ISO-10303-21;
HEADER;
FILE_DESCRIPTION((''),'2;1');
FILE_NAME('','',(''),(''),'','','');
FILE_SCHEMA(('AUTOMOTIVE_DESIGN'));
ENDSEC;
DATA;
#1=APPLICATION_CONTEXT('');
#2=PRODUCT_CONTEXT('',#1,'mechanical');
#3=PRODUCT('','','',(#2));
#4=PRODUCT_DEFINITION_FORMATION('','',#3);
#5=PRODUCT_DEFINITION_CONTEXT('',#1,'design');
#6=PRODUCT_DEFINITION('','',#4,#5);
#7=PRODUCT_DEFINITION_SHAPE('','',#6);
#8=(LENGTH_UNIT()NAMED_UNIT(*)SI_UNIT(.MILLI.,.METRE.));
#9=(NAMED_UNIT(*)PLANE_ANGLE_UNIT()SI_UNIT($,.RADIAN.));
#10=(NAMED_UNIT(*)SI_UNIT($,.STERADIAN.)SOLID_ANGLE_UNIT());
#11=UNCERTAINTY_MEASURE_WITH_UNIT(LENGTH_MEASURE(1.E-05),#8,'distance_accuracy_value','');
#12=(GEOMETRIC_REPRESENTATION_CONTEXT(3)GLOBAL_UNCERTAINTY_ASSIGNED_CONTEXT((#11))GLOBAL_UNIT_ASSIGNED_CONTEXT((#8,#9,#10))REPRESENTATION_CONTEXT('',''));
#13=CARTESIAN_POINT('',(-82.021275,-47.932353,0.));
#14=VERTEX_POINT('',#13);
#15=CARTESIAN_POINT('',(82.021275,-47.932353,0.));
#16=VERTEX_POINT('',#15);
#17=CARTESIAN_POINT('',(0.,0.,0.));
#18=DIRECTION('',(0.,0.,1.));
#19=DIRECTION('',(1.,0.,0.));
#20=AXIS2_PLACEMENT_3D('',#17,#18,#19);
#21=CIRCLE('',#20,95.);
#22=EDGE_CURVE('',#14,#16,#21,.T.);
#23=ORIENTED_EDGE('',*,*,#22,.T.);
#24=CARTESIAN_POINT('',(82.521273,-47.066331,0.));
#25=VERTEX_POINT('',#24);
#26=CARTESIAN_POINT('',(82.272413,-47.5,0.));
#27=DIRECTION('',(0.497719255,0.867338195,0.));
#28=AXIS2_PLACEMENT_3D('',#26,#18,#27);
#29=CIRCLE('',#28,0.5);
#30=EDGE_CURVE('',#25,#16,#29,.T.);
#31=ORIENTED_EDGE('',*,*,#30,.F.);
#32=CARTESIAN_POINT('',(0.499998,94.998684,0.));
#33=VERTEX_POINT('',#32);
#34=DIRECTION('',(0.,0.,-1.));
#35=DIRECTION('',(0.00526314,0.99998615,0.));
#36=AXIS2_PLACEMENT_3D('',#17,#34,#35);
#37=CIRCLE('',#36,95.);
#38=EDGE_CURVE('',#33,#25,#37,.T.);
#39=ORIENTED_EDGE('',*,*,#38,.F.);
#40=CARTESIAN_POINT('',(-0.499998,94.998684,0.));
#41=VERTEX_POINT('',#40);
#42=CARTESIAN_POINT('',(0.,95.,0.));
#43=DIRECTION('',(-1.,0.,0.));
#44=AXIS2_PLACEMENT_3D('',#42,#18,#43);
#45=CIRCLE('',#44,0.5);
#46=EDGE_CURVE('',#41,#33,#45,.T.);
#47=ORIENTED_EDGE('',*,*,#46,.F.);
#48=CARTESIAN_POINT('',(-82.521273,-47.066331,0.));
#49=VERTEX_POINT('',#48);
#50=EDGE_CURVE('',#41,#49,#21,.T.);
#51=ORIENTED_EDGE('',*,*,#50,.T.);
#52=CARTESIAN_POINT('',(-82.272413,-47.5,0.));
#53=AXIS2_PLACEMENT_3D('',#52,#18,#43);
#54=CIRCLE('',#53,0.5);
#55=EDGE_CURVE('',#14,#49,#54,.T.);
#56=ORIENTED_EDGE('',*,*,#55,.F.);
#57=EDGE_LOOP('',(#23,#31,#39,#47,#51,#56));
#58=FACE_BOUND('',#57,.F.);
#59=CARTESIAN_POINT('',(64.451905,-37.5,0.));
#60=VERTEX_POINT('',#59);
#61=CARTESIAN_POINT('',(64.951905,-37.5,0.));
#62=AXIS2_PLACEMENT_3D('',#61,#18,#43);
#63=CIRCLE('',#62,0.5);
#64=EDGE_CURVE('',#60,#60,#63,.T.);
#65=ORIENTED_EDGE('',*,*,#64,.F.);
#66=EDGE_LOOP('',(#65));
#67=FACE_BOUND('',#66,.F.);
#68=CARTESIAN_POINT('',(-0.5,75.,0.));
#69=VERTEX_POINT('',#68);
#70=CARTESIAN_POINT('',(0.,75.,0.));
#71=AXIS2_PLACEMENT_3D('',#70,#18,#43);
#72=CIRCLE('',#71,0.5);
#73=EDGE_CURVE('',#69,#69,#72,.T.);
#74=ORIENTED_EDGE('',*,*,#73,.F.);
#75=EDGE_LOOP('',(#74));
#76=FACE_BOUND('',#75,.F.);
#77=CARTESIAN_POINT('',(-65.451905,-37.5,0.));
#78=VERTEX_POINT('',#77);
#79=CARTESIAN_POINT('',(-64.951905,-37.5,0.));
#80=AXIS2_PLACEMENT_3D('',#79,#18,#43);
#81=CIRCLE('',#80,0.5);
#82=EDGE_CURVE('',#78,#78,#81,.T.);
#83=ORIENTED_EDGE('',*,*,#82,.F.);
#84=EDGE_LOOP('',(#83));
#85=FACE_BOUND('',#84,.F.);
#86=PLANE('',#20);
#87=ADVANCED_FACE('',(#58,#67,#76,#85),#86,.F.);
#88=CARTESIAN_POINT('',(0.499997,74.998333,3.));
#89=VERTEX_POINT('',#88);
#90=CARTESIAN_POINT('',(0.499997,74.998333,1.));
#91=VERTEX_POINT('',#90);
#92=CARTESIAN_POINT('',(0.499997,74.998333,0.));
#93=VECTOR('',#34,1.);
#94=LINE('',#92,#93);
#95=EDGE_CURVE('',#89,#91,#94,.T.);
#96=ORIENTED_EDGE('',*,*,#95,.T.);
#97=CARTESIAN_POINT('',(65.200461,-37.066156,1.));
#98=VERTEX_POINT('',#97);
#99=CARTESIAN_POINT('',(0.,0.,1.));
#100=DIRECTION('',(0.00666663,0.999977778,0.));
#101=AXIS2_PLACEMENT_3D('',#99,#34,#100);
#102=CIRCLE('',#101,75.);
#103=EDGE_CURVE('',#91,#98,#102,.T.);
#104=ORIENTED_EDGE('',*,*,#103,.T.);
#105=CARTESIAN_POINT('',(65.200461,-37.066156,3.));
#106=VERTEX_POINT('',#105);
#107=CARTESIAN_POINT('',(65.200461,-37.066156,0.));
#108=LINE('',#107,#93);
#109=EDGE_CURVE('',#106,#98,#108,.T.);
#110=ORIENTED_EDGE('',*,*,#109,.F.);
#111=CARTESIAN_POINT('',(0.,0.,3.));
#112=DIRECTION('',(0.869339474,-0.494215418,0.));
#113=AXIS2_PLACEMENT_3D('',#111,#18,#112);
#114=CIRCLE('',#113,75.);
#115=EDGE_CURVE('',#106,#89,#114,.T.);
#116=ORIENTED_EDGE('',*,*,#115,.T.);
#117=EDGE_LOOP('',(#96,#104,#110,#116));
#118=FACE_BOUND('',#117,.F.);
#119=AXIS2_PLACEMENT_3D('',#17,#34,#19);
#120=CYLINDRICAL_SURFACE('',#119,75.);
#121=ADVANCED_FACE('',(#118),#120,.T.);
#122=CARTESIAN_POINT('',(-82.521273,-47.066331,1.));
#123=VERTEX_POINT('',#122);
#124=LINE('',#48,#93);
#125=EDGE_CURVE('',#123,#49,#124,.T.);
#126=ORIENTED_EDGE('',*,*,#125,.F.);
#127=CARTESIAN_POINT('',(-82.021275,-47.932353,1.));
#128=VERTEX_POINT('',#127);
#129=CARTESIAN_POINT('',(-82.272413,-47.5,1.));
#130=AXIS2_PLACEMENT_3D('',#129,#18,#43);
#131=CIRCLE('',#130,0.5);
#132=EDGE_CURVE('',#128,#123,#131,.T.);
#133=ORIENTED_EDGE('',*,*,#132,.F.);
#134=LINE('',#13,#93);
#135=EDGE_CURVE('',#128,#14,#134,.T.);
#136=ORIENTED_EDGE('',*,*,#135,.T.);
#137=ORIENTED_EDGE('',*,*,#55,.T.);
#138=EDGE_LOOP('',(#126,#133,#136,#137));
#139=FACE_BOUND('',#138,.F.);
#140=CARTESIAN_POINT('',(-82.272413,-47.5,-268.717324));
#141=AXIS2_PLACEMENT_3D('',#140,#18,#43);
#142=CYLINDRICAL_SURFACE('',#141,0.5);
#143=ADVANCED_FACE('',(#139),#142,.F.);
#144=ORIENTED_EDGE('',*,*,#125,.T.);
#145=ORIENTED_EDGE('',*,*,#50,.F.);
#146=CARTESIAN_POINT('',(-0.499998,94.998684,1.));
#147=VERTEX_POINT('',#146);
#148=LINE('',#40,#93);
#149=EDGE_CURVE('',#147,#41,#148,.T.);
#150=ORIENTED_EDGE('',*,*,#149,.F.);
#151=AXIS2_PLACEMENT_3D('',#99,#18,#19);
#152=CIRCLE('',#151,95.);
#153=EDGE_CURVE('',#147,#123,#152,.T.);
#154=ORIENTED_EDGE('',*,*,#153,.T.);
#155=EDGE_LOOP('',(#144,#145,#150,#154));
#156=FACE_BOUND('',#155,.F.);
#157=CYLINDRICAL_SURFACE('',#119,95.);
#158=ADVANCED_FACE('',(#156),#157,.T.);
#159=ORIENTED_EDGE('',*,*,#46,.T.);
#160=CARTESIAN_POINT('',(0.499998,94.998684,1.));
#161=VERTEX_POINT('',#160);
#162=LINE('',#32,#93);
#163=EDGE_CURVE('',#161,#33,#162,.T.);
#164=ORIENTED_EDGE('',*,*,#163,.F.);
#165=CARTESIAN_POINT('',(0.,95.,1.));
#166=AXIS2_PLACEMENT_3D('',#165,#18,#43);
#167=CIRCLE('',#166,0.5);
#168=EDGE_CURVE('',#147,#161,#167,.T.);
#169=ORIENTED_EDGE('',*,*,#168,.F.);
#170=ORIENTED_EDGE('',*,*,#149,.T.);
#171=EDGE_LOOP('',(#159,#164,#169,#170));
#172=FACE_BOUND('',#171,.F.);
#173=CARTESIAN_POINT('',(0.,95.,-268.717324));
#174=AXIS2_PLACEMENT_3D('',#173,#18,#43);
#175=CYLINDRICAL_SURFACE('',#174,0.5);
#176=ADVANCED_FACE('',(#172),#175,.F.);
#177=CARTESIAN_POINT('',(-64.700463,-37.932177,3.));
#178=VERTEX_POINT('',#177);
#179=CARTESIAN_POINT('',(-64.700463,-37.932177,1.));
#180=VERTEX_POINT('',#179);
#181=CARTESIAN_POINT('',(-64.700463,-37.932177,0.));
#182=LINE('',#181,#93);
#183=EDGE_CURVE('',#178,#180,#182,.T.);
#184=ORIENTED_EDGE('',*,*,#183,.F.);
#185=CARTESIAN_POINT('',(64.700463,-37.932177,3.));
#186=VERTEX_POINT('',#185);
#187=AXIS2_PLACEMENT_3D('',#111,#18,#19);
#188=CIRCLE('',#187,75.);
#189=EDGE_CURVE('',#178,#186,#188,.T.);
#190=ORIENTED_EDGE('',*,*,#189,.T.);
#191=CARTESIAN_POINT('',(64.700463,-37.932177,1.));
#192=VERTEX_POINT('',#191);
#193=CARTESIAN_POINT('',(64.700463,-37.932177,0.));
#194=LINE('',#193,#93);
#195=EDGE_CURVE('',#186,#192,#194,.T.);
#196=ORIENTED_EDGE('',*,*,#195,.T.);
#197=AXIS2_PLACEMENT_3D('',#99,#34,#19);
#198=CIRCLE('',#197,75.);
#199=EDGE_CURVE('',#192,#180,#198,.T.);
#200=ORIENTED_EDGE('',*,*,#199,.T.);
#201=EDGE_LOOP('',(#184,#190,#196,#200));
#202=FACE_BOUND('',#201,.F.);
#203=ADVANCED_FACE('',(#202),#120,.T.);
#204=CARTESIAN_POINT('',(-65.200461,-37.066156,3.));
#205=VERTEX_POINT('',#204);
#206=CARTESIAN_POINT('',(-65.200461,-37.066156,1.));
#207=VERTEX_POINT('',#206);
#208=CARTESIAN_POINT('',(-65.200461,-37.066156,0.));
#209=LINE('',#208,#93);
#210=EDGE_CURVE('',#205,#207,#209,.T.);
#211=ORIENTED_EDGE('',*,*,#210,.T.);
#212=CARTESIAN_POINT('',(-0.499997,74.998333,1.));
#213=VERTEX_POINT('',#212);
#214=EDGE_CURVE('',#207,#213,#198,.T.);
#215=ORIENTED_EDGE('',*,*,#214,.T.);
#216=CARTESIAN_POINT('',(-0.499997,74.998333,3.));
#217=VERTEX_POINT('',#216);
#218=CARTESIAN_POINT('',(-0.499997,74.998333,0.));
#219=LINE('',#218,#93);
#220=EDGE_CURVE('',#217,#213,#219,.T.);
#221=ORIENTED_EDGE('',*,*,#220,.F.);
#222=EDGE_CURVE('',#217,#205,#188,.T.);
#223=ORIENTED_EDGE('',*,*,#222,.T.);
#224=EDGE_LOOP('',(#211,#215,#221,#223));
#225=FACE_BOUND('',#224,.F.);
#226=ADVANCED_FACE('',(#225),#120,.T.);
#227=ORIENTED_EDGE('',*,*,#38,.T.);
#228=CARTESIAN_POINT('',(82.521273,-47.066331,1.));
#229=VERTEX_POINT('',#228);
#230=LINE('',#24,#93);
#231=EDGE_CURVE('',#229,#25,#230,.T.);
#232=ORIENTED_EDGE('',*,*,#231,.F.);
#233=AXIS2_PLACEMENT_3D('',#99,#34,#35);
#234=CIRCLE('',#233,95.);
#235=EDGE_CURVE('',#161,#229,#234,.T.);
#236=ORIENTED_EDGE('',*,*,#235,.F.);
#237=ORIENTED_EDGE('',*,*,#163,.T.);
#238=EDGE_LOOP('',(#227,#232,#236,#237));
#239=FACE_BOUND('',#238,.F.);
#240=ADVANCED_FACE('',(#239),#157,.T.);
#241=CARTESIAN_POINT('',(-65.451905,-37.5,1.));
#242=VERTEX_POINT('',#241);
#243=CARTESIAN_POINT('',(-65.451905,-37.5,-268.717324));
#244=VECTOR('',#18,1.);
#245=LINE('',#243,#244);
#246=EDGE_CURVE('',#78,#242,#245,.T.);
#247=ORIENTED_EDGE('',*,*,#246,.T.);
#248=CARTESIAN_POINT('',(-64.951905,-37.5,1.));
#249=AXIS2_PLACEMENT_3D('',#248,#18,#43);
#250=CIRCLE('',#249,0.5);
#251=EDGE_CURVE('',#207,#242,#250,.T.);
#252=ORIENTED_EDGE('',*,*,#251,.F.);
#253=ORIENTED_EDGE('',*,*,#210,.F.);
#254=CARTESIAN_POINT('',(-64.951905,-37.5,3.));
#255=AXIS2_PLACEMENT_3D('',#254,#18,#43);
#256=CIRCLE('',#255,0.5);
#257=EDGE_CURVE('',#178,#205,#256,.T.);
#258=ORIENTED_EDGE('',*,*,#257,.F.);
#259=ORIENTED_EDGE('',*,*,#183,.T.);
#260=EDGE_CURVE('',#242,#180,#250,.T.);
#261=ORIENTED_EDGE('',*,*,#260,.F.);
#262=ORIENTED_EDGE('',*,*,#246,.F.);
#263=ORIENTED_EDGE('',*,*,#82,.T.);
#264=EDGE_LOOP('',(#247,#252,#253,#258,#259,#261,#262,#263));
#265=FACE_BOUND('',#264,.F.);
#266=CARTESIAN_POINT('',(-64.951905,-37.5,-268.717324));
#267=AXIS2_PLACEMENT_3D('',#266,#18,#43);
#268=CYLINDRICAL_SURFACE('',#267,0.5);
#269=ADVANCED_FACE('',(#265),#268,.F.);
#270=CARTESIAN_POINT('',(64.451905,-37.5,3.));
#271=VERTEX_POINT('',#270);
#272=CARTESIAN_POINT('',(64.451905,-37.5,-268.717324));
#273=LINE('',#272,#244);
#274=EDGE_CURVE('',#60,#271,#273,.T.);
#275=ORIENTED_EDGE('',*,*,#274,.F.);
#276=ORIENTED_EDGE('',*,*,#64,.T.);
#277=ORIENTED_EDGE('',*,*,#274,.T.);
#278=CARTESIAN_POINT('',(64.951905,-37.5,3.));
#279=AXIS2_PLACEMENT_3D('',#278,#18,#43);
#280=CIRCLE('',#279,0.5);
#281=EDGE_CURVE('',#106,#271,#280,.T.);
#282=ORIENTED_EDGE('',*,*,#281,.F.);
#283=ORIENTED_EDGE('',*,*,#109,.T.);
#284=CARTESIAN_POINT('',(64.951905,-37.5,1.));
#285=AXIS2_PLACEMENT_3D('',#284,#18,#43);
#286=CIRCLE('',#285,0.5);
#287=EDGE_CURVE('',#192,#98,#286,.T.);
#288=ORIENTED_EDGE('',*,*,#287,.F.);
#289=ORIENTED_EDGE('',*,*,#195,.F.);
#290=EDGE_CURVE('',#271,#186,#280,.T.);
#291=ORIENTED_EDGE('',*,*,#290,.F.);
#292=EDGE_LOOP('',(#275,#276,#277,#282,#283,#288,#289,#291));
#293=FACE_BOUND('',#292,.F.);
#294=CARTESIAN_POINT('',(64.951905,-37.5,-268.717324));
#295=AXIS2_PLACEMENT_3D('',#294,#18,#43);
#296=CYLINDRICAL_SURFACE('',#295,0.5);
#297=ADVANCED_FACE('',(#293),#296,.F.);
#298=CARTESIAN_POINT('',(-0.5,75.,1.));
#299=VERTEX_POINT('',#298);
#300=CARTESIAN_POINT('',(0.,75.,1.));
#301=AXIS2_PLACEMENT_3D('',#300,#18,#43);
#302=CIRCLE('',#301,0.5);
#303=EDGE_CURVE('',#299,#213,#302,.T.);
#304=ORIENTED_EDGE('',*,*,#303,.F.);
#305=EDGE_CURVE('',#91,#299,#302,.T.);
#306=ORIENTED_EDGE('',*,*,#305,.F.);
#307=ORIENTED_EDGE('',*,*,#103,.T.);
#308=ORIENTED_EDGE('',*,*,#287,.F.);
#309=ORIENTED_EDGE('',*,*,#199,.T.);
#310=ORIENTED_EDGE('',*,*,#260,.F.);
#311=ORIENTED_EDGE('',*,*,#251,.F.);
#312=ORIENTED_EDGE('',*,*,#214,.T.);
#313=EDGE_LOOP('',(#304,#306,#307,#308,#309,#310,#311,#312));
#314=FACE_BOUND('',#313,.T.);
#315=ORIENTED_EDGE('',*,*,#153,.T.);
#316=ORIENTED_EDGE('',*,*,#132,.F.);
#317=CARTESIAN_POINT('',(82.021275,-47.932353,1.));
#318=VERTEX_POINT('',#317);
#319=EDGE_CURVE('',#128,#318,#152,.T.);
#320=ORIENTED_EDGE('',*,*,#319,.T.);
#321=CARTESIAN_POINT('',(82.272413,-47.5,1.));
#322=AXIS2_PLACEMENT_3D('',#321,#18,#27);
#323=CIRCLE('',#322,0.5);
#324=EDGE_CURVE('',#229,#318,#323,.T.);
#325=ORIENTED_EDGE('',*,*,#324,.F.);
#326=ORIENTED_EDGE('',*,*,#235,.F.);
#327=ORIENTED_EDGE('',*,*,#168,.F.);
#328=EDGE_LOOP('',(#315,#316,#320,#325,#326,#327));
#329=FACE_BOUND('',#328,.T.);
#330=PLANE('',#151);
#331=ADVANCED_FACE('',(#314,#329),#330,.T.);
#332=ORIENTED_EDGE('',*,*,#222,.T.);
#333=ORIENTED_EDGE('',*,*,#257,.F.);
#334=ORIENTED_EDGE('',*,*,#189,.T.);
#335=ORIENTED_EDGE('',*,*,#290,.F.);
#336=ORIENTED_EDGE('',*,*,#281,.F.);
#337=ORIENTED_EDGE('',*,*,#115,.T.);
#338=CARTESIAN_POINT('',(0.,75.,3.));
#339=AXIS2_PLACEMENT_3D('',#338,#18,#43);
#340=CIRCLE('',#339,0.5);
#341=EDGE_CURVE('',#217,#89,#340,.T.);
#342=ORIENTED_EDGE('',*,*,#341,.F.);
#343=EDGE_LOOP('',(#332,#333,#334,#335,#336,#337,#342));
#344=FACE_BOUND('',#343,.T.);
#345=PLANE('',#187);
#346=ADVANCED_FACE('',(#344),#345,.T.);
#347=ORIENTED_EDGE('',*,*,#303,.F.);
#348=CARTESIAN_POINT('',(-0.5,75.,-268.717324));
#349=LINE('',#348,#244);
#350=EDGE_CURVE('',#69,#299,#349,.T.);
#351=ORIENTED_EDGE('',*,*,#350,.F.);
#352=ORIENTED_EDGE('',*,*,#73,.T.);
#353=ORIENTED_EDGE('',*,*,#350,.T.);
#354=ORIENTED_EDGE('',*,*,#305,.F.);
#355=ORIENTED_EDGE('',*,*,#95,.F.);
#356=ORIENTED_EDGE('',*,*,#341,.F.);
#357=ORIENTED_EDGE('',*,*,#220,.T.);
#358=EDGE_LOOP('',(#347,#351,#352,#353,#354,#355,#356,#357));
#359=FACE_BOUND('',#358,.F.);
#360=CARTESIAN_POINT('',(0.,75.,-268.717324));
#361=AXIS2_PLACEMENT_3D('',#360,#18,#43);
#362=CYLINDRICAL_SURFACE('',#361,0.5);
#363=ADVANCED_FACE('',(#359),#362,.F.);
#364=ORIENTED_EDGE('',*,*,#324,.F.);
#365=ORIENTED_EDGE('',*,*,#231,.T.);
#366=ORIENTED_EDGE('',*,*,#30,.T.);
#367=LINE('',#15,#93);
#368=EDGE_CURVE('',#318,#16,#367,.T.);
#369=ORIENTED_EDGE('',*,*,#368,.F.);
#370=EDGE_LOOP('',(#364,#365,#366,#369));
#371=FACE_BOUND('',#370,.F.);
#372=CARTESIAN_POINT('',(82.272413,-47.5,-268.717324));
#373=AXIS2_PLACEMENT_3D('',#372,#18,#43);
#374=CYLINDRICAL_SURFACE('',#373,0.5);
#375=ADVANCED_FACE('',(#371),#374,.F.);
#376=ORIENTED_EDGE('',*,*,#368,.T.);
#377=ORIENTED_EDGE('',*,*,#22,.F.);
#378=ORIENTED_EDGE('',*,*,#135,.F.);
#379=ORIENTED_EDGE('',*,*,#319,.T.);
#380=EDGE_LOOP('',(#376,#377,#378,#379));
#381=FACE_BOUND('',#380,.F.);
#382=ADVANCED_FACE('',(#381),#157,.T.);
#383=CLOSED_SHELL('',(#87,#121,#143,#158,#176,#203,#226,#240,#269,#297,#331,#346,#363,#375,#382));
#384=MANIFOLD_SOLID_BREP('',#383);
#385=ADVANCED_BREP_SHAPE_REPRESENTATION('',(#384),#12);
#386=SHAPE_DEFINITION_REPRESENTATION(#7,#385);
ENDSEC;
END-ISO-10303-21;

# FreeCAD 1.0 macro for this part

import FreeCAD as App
import Part
import Sketcher
from FreeCAD import Vector
Q = App.Units.Quantity

doc = App.newDocument("Part")
params = doc.addObject("Spreadsheet::Sheet", "Params")
for row, (alias, value) in enumerate([
    ("sketch1_diameter", "190 mm"),
    ("pad1_length", "1 mm"),
    ("sketch2_diameter", "150 mm"),
    ("pad2_length", "3 mm"),
    ("sketch3_diameter", "1 mm"),
    ("hole_diameter", "1 mm"),
], start=1):
    params.set(f"A{row}", alias)
    params.set(f"B{row}", "=" + value)
    params.setAlias(f"B{row}", alias)

body = doc.addObject("PartDesign::Body", "Body")

# Sketch on XY plane
sketch1 = body.newObject("Sketcher::SketchObject", "Sketch")
sketch1.AttachmentSupport = (doc.getObject("XY_Plane"), [""])
sketch1.MapMode = "FlatFace"
sketch1.addGeometry(Part.Circle(Vector(0, 0, 0), Vector(0, 0, 1), 95), False)
sketch1.addConstraint(Sketcher.Constraint("Coincident", 0, 3, -1, 1))
sketch1.addConstraint(Sketcher.Constraint("Diameter", 0, Q("190 mm")))
sketch1.setExpression("Constraints[1]", "Params.sketch1_diameter")
pad1 = body.newObject("PartDesign::Pad", "Pad")
pad1.Profile = sketch1
pad1.setExpression("Length", "Params.pad1_length")

# Sketch on XY plane
sketch2 = body.newObject("Sketcher::SketchObject", "Sketch001")
sketch2.AttachmentSupport = (doc.getObject("XY_Plane"), [""])
sketch2.MapMode = "FlatFace"
sketch2.addGeometry(Part.Circle(Vector(0, 0, 0), Vector(0, 0, 1), 75), False)
sketch2.addConstraint(Sketcher.Constraint("Coincident", 0, 3, -1, 1))
sketch2.addConstraint(Sketcher.Constraint("Diameter", 0, Q("150 mm")))
sketch2.setExpression("Constraints[1]", "Params.sketch2_diameter")
pad2 = body.newObject("PartDesign::Pad", "Pad001")
pad2.Profile = sketch2
pad2.setExpression("Length", "Params.pad2_length")

# Sketch on XY plane
sketch3 = body.newObject("Sketcher::SketchObject", "Sketch002")
sketch3.AttachmentSupport = (doc.getObject("XY_Plane"), [""])
sketch3.MapMode = "FlatFace"
sketch3.addGeometry(Part.Circle(Vector(0, 75, 0), Vector(0, 0, 1), 0.5), False)
sketch3.addGeometry(Part.Circle(Vector(-64.951905, -37.5, 0), Vector(0, 0, 1), 0.5), False)
sketch3.addGeometry(Part.Circle(Vector(64.951905, -37.5, 0), Vector(0, 0, 1), 0.5), False)
sketch3.addGeometry(Part.Circle(Vector(82.272413, -47.5, 0), Vector(0, 0, 1), 0.5), False)
sketch3.addGeometry(Part.Circle(Vector(-82.272413, -47.5, 0), Vector(0, 0, 1), 0.5), False)
sketch3.addGeometry(Part.Circle(Vector(0, 95, 0), Vector(0, 0, 1), 0.5), False)
sketch3.addConstraint(Sketcher.Constraint("Equal", 0, 1))
sketch3.addConstraint(Sketcher.Constraint("Equal", 1, 2))
sketch3.addConstraint(Sketcher.Constraint("Equal", 2, 3))
sketch3.addConstraint(Sketcher.Constraint("Equal", 3, 4))
sketch3.addConstraint(Sketcher.Constraint("Equal", 4, 5))
sketch3.addConstraint(Sketcher.Constraint("Symmetric", 1, 3, 2, 3, -2))
sketch3.addConstraint(Sketcher.Constraint("Symmetric", 3, 3, 4, 3, -2))
sketch3.addConstraint(Sketcher.Constraint("PointOnObject", 0, 3, -2))
sketch3.addConstraint(Sketcher.Constraint("PointOnObject", 5, 3, -2))
sketch3.addConstraint(Sketcher.Constraint("Diameter", 0, Q("1 mm")))
sketch3.addConstraint(Sketcher.Constraint("DistanceY", -1, 1, 0, 3, Q("75 mm")))
sketch3.addConstraint(Sketcher.Constraint("DistanceY", -1, 1, 5, 3, Q("95 mm")))
sketch3.addConstraint(Sketcher.Constraint("DistanceY", 3, 3, 2, 3, Q("10 mm")))
sketch3.addConstraint(Sketcher.Constraint("DistanceY", 1, 3, -1, 1, Q("37.5 mm")))
sketch3.addConstraint(Sketcher.Constraint("DistanceX", 1, 3, 2, 3, Q("129.903811 mm")))
sketch3.addConstraint(Sketcher.Constraint("DistanceX", 2, 3, 3, 3, Q("17.320508 mm")))
sketch3.setExpression("Constraints[9]", "Params.sketch3_diameter")
doc.recompute()
hole = body.newObject("PartDesign::Hole", "Hole")
hole.Profile = sketch3
hole.ThreadType = "None"
hole.setExpression("Diameter", "Params.hole_diameter")
hole.DepthType = "ThroughAll"
hole.Reversed = True

doc.recompute()
